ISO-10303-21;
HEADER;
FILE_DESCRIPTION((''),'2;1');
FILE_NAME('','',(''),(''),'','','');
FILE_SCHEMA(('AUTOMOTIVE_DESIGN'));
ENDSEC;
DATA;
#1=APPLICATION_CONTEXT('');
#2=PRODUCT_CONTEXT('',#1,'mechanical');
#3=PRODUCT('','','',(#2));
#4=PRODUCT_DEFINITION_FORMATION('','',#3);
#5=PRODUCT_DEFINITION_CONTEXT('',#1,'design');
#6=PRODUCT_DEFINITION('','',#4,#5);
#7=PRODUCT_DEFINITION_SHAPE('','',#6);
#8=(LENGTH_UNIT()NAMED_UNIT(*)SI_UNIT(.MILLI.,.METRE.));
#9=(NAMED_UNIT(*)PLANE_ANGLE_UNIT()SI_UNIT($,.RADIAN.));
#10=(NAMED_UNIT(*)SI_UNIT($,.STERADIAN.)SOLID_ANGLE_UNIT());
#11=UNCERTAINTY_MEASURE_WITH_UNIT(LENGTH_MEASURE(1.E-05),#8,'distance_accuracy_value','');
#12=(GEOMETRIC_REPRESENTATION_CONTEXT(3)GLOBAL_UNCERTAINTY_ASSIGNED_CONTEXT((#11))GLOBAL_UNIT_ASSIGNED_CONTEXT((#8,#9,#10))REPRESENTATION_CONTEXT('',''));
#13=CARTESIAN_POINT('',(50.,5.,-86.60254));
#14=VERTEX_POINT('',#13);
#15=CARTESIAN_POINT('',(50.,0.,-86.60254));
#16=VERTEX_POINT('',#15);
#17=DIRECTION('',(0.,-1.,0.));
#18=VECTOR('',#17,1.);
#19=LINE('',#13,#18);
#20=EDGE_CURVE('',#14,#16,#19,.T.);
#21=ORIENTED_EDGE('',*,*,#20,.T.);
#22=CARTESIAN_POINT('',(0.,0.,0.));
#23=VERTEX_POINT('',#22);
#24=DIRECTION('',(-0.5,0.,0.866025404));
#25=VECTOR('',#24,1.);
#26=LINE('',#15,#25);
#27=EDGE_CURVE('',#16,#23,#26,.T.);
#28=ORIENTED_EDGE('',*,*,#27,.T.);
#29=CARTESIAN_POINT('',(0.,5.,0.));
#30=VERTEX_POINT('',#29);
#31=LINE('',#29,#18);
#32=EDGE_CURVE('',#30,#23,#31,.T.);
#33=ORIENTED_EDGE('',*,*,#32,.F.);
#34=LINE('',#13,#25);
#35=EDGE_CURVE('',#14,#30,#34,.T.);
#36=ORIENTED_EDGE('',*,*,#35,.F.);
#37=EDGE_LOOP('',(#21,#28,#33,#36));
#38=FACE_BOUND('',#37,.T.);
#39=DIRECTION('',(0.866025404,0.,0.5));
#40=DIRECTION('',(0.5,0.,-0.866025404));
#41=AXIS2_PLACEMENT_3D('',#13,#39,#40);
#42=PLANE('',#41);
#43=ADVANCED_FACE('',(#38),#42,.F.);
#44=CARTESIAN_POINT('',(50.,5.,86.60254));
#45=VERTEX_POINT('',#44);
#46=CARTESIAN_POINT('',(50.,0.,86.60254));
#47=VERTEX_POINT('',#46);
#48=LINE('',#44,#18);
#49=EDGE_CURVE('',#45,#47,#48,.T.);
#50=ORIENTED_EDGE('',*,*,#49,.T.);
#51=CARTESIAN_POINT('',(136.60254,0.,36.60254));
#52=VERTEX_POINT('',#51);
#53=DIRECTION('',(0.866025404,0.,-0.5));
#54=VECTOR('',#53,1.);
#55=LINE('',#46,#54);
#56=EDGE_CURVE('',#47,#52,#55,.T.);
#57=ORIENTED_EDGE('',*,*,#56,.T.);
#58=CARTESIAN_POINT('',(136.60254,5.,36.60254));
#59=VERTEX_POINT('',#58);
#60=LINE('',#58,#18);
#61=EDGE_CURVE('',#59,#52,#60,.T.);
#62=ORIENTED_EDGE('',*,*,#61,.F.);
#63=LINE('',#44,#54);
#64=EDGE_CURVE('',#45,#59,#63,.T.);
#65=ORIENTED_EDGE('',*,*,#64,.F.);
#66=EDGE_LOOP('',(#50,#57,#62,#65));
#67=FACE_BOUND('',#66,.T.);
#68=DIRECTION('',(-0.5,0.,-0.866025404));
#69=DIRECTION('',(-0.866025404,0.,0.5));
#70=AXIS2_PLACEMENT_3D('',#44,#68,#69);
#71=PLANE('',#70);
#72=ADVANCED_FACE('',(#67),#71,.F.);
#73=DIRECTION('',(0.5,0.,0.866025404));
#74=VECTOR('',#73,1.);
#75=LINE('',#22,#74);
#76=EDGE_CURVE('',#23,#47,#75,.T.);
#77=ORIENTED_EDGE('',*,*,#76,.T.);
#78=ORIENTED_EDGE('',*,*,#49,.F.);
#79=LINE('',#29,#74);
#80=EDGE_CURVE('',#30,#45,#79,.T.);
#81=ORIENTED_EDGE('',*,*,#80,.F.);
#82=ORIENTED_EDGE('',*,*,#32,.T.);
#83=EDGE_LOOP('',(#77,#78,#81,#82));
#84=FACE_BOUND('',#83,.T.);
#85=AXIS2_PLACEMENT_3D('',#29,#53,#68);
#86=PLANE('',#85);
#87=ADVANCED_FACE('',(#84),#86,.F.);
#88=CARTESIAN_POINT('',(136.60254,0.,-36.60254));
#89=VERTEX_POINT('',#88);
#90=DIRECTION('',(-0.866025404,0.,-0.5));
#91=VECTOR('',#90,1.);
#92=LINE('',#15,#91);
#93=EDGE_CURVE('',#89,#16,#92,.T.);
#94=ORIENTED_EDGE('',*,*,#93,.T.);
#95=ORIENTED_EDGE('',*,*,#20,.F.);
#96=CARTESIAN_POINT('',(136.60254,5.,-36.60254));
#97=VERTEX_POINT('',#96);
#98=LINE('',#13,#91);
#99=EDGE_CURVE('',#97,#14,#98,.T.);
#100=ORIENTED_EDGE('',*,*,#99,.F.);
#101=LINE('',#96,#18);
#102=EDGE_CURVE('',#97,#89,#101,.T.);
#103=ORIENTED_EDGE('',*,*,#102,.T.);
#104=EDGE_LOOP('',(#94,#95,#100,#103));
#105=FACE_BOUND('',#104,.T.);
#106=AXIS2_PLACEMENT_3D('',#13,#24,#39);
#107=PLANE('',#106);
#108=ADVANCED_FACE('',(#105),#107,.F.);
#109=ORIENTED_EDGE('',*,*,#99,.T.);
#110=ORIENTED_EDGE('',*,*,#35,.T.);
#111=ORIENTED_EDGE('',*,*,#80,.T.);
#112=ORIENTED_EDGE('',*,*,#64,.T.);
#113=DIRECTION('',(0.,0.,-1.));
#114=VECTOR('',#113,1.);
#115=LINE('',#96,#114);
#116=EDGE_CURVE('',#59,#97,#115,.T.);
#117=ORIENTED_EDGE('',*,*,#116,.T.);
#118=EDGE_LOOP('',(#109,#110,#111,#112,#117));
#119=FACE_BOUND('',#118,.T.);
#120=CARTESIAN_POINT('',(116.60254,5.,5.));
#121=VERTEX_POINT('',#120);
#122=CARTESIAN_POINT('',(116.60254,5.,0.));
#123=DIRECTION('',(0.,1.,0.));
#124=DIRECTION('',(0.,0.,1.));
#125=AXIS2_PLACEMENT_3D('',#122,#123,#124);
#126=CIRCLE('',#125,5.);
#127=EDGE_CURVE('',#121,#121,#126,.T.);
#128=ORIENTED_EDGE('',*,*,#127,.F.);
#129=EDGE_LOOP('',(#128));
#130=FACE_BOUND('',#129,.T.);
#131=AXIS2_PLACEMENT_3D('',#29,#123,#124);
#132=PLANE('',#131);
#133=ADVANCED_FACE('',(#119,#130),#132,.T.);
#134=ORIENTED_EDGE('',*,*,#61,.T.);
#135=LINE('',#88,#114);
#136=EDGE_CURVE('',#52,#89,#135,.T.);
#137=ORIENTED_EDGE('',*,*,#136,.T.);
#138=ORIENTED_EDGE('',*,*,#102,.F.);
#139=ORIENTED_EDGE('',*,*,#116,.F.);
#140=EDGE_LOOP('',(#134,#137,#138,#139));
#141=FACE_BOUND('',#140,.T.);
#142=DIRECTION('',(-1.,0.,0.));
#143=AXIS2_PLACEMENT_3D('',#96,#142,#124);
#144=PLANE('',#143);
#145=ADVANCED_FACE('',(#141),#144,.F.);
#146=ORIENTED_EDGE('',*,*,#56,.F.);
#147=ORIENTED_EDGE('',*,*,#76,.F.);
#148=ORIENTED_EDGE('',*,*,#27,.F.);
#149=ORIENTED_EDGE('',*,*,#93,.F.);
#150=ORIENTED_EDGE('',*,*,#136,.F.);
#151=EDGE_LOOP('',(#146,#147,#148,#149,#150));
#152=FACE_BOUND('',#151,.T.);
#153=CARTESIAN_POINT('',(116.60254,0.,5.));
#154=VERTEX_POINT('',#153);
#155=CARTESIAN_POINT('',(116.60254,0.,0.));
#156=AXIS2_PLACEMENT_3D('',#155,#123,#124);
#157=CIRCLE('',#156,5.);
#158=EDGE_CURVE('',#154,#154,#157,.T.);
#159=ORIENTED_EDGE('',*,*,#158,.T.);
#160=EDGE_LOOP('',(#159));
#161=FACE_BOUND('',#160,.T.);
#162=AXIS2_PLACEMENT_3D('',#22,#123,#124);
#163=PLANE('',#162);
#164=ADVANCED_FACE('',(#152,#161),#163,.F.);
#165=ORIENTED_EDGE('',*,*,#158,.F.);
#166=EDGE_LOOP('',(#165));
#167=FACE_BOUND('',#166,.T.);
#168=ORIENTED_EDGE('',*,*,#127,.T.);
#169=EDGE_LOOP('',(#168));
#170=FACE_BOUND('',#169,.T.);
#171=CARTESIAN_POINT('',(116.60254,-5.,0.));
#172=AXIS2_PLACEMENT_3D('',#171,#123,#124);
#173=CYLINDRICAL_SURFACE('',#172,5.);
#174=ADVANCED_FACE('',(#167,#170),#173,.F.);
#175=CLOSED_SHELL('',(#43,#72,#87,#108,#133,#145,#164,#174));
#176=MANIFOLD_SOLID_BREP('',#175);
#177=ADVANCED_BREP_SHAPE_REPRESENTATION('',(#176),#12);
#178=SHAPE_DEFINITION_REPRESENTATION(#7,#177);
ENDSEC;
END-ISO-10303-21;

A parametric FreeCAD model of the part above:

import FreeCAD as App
import Part
import Sketcher
from FreeCAD import Vector
Q = App.Units.Quantity


def add_polygon(sketch, points):
    """Adds a closed chain of lines whose ends are joined by coincident constraints."""
    first, n = sketch.GeometryCount, len(points)
    for a, b in zip(points, points[1:] + points[:1]):
        sketch.addGeometry(Part.LineSegment(App.Vector(*a, 0), App.Vector(*b, 0)), False)
    for i in range(n):
        sketch.addConstraint(Sketcher.Constraint("Coincident", first + i, 2, first + (i + 1) % n, 1))

doc = App.newDocument("Part")
params = doc.addObject("Spreadsheet::Sheet", "Params")
for row, (alias, value) in enumerate([
    ("sketch1_length", "100 mm"),
    ("pad1_length", "5 mm"),
    ("sketch2_diameter", "10 mm"),
    ("pocket1_length", "10 mm"),
], start=1):
    params.set(f"A{row}", alias)
    params.set(f"B{row}", "=" + value)
    params.setAlias(f"B{row}", alias)

body = doc.addObject("PartDesign::Body", "Body")

# Sketch on XZ plane
sketch1 = doc.addObject("Sketcher::SketchObject", "Sketch")
body.addObject(sketch1)
sketch1.AttachmentSupport = (doc.XZ_Plane, [""])
sketch1.MapMode = "FlatFace"
add_polygon(sketch1, [(0, 0), (50, 87), (137, 37), (137, -37), (50, -87)])  # lines 0-4
sketch1.addConstraint(Sketcher.Constraint("Vertical", 2))
sketch1.addConstraint(Sketcher.Constraint("Coincident", 4, 2, -1, 1))
sketch1.addConstraint(Sketcher.Constraint("Symmetric", 0, 2, 3, 2, -1))
sketch1.addConstraint(Sketcher.Constraint("Perpendicular", 0, 1))
sketch1.addConstraint(Sketcher.Constraint("Perpendicular", 3, 4))
sketch1.addConstraint(Sketcher.Constraint("Equal", 0, 1))
sketch1.addConstraint(Sketcher.Constraint("Angle", 0, Q("60 deg")))
sketch1.addConstraint(Sketcher.Constraint("Distance", 0, 100.0))
sketch1.setExpression("Constraints[12]", "Params.sketch1_length")
pad1 = doc.addObject("PartDesign::Pad", "Pad")
body.addObject(pad1)
pad1.Profile = sketch1
pad1.setExpression("Length", "Params.pad1_length")
pad1.Reversed = True

# Sketch on XZ plane
sketch2 = doc.addObject("Sketcher::SketchObject", "Sketch001")
body.addObject(sketch2)
sketch2.AttachmentSupport = (doc.XZ_Plane, [""])
sketch2.MapMode = "FlatFace"
sketch2.AttachmentOffset = App.Placement(Vector(0, 0, -5), App.Rotation())
sketch2.addGeometry(Part.Circle(Vector(117, 0, 0), Vector(0, 0, 1), 5), False)
sketch2.addConstraint(Sketcher.Constraint("PointOnObject", 0, 3, -1))
sketch2.addConstraint(Sketcher.Constraint("Diameter", 0, 10.0))
sketch2.addConstraint(Sketcher.Constraint("DistanceX", -1, 1, 0, 3, 116.60254))
sketch2.setExpression("Constraints[1]", "Params.sketch2_diameter")
pocket1 = doc.addObject("PartDesign::Pocket", "Pocket")
body.addObject(pocket1)
pocket1.Profile = sketch2
pocket1.setExpression("Length", "Params.pocket1_length")
pocket1.Reversed = True

doc.recompute()
